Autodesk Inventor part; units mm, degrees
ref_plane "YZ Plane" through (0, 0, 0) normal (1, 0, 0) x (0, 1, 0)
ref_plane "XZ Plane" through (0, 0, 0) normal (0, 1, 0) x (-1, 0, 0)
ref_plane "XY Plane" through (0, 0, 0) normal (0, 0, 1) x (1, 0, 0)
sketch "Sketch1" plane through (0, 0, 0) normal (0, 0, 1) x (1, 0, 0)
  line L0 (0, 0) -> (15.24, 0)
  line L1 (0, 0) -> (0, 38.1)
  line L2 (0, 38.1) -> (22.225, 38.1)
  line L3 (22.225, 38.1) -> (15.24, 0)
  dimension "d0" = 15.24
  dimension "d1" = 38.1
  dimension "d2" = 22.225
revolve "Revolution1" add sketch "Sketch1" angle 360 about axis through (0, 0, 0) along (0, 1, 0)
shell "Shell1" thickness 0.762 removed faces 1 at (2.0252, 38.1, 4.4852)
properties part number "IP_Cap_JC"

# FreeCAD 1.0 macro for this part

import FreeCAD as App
import Part
import Sketcher
Q = App.Units.Quantity


def faces_at(feature, points):
    """Names of the faces that lie closest to the given points."""
    faces = feature.Shape.Faces
    near = lambda p: min(range(len(faces)), key=lambda i: faces[i].distToShape(Part.Vertex(*p))[0])
    return sorted({f"Face{near(p) + 1}" for p in points})


def add_polygon(sketch, points):
    """Adds a closed chain of lines whose ends are joined by coincident constraints."""
    first, n = sketch.GeometryCount, len(points)
    for a, b in zip(points, points[1:] + points[:1]):
        sketch.addGeometry(Part.LineSegment(App.Vector(*a, 0), App.Vector(*b, 0)), False)
    for i in range(n):
        sketch.addConstraint(Sketcher.Constraint("Coincident", first + i, 2, first + (i + 1) % n, 1))

doc = App.newDocument("Part")
body = doc.addObject("PartDesign::Body", "Body")

# Sketch on XY plane
sketch1 = body.newObject("Sketcher::SketchObject", "Sketch")
sketch1.AttachmentSupport = (doc.getObject("XY_Plane"), [""])
sketch1.MapMode = "FlatFace"
add_polygon(sketch1, [(0, 38), (0, 0), (15, 0), (22, 38)])  # lines 0-3
sketch1.addConstraint(Sketcher.Constraint("Vertical", 0))
sketch1.addConstraint(Sketcher.Constraint("Horizontal", 1))
sketch1.addConstraint(Sketcher.Constraint("Horizontal", 3))
sketch1.addConstraint(Sketcher.Constraint("Coincident", 0, 2, -1, 1))
sketch1.addConstraint(Sketcher.Constraint("DistanceX", 1, 1, 1, 2, Q("0.6 in")))
sketch1.addConstraint(Sketcher.Constraint("DistanceY", 0, 2, 0, 1, Q("1.5 in")))
sketch1.addConstraint(Sketcher.Constraint("DistanceX", 3, 2, 3, 1, Q("0.875 in")))
revolution = body.newObject("PartDesign::Revolution", "Revolution")
revolution.Profile = sketch1
revolution.ReferenceAxis = (sketch1, ["V_Axis"])
revolution.Angle = 360
doc.recompute()

thickness = body.newObject("PartDesign::Thickness", "Thickness")
thickness.Base = (revolution, faces_at(revolution, [(2.025, 38.1, 4.485)]))
thickness.Value = Q("0.03 in")
thickness.Reversed = True
thickness.Join = "Intersection"

doc.recompute()
